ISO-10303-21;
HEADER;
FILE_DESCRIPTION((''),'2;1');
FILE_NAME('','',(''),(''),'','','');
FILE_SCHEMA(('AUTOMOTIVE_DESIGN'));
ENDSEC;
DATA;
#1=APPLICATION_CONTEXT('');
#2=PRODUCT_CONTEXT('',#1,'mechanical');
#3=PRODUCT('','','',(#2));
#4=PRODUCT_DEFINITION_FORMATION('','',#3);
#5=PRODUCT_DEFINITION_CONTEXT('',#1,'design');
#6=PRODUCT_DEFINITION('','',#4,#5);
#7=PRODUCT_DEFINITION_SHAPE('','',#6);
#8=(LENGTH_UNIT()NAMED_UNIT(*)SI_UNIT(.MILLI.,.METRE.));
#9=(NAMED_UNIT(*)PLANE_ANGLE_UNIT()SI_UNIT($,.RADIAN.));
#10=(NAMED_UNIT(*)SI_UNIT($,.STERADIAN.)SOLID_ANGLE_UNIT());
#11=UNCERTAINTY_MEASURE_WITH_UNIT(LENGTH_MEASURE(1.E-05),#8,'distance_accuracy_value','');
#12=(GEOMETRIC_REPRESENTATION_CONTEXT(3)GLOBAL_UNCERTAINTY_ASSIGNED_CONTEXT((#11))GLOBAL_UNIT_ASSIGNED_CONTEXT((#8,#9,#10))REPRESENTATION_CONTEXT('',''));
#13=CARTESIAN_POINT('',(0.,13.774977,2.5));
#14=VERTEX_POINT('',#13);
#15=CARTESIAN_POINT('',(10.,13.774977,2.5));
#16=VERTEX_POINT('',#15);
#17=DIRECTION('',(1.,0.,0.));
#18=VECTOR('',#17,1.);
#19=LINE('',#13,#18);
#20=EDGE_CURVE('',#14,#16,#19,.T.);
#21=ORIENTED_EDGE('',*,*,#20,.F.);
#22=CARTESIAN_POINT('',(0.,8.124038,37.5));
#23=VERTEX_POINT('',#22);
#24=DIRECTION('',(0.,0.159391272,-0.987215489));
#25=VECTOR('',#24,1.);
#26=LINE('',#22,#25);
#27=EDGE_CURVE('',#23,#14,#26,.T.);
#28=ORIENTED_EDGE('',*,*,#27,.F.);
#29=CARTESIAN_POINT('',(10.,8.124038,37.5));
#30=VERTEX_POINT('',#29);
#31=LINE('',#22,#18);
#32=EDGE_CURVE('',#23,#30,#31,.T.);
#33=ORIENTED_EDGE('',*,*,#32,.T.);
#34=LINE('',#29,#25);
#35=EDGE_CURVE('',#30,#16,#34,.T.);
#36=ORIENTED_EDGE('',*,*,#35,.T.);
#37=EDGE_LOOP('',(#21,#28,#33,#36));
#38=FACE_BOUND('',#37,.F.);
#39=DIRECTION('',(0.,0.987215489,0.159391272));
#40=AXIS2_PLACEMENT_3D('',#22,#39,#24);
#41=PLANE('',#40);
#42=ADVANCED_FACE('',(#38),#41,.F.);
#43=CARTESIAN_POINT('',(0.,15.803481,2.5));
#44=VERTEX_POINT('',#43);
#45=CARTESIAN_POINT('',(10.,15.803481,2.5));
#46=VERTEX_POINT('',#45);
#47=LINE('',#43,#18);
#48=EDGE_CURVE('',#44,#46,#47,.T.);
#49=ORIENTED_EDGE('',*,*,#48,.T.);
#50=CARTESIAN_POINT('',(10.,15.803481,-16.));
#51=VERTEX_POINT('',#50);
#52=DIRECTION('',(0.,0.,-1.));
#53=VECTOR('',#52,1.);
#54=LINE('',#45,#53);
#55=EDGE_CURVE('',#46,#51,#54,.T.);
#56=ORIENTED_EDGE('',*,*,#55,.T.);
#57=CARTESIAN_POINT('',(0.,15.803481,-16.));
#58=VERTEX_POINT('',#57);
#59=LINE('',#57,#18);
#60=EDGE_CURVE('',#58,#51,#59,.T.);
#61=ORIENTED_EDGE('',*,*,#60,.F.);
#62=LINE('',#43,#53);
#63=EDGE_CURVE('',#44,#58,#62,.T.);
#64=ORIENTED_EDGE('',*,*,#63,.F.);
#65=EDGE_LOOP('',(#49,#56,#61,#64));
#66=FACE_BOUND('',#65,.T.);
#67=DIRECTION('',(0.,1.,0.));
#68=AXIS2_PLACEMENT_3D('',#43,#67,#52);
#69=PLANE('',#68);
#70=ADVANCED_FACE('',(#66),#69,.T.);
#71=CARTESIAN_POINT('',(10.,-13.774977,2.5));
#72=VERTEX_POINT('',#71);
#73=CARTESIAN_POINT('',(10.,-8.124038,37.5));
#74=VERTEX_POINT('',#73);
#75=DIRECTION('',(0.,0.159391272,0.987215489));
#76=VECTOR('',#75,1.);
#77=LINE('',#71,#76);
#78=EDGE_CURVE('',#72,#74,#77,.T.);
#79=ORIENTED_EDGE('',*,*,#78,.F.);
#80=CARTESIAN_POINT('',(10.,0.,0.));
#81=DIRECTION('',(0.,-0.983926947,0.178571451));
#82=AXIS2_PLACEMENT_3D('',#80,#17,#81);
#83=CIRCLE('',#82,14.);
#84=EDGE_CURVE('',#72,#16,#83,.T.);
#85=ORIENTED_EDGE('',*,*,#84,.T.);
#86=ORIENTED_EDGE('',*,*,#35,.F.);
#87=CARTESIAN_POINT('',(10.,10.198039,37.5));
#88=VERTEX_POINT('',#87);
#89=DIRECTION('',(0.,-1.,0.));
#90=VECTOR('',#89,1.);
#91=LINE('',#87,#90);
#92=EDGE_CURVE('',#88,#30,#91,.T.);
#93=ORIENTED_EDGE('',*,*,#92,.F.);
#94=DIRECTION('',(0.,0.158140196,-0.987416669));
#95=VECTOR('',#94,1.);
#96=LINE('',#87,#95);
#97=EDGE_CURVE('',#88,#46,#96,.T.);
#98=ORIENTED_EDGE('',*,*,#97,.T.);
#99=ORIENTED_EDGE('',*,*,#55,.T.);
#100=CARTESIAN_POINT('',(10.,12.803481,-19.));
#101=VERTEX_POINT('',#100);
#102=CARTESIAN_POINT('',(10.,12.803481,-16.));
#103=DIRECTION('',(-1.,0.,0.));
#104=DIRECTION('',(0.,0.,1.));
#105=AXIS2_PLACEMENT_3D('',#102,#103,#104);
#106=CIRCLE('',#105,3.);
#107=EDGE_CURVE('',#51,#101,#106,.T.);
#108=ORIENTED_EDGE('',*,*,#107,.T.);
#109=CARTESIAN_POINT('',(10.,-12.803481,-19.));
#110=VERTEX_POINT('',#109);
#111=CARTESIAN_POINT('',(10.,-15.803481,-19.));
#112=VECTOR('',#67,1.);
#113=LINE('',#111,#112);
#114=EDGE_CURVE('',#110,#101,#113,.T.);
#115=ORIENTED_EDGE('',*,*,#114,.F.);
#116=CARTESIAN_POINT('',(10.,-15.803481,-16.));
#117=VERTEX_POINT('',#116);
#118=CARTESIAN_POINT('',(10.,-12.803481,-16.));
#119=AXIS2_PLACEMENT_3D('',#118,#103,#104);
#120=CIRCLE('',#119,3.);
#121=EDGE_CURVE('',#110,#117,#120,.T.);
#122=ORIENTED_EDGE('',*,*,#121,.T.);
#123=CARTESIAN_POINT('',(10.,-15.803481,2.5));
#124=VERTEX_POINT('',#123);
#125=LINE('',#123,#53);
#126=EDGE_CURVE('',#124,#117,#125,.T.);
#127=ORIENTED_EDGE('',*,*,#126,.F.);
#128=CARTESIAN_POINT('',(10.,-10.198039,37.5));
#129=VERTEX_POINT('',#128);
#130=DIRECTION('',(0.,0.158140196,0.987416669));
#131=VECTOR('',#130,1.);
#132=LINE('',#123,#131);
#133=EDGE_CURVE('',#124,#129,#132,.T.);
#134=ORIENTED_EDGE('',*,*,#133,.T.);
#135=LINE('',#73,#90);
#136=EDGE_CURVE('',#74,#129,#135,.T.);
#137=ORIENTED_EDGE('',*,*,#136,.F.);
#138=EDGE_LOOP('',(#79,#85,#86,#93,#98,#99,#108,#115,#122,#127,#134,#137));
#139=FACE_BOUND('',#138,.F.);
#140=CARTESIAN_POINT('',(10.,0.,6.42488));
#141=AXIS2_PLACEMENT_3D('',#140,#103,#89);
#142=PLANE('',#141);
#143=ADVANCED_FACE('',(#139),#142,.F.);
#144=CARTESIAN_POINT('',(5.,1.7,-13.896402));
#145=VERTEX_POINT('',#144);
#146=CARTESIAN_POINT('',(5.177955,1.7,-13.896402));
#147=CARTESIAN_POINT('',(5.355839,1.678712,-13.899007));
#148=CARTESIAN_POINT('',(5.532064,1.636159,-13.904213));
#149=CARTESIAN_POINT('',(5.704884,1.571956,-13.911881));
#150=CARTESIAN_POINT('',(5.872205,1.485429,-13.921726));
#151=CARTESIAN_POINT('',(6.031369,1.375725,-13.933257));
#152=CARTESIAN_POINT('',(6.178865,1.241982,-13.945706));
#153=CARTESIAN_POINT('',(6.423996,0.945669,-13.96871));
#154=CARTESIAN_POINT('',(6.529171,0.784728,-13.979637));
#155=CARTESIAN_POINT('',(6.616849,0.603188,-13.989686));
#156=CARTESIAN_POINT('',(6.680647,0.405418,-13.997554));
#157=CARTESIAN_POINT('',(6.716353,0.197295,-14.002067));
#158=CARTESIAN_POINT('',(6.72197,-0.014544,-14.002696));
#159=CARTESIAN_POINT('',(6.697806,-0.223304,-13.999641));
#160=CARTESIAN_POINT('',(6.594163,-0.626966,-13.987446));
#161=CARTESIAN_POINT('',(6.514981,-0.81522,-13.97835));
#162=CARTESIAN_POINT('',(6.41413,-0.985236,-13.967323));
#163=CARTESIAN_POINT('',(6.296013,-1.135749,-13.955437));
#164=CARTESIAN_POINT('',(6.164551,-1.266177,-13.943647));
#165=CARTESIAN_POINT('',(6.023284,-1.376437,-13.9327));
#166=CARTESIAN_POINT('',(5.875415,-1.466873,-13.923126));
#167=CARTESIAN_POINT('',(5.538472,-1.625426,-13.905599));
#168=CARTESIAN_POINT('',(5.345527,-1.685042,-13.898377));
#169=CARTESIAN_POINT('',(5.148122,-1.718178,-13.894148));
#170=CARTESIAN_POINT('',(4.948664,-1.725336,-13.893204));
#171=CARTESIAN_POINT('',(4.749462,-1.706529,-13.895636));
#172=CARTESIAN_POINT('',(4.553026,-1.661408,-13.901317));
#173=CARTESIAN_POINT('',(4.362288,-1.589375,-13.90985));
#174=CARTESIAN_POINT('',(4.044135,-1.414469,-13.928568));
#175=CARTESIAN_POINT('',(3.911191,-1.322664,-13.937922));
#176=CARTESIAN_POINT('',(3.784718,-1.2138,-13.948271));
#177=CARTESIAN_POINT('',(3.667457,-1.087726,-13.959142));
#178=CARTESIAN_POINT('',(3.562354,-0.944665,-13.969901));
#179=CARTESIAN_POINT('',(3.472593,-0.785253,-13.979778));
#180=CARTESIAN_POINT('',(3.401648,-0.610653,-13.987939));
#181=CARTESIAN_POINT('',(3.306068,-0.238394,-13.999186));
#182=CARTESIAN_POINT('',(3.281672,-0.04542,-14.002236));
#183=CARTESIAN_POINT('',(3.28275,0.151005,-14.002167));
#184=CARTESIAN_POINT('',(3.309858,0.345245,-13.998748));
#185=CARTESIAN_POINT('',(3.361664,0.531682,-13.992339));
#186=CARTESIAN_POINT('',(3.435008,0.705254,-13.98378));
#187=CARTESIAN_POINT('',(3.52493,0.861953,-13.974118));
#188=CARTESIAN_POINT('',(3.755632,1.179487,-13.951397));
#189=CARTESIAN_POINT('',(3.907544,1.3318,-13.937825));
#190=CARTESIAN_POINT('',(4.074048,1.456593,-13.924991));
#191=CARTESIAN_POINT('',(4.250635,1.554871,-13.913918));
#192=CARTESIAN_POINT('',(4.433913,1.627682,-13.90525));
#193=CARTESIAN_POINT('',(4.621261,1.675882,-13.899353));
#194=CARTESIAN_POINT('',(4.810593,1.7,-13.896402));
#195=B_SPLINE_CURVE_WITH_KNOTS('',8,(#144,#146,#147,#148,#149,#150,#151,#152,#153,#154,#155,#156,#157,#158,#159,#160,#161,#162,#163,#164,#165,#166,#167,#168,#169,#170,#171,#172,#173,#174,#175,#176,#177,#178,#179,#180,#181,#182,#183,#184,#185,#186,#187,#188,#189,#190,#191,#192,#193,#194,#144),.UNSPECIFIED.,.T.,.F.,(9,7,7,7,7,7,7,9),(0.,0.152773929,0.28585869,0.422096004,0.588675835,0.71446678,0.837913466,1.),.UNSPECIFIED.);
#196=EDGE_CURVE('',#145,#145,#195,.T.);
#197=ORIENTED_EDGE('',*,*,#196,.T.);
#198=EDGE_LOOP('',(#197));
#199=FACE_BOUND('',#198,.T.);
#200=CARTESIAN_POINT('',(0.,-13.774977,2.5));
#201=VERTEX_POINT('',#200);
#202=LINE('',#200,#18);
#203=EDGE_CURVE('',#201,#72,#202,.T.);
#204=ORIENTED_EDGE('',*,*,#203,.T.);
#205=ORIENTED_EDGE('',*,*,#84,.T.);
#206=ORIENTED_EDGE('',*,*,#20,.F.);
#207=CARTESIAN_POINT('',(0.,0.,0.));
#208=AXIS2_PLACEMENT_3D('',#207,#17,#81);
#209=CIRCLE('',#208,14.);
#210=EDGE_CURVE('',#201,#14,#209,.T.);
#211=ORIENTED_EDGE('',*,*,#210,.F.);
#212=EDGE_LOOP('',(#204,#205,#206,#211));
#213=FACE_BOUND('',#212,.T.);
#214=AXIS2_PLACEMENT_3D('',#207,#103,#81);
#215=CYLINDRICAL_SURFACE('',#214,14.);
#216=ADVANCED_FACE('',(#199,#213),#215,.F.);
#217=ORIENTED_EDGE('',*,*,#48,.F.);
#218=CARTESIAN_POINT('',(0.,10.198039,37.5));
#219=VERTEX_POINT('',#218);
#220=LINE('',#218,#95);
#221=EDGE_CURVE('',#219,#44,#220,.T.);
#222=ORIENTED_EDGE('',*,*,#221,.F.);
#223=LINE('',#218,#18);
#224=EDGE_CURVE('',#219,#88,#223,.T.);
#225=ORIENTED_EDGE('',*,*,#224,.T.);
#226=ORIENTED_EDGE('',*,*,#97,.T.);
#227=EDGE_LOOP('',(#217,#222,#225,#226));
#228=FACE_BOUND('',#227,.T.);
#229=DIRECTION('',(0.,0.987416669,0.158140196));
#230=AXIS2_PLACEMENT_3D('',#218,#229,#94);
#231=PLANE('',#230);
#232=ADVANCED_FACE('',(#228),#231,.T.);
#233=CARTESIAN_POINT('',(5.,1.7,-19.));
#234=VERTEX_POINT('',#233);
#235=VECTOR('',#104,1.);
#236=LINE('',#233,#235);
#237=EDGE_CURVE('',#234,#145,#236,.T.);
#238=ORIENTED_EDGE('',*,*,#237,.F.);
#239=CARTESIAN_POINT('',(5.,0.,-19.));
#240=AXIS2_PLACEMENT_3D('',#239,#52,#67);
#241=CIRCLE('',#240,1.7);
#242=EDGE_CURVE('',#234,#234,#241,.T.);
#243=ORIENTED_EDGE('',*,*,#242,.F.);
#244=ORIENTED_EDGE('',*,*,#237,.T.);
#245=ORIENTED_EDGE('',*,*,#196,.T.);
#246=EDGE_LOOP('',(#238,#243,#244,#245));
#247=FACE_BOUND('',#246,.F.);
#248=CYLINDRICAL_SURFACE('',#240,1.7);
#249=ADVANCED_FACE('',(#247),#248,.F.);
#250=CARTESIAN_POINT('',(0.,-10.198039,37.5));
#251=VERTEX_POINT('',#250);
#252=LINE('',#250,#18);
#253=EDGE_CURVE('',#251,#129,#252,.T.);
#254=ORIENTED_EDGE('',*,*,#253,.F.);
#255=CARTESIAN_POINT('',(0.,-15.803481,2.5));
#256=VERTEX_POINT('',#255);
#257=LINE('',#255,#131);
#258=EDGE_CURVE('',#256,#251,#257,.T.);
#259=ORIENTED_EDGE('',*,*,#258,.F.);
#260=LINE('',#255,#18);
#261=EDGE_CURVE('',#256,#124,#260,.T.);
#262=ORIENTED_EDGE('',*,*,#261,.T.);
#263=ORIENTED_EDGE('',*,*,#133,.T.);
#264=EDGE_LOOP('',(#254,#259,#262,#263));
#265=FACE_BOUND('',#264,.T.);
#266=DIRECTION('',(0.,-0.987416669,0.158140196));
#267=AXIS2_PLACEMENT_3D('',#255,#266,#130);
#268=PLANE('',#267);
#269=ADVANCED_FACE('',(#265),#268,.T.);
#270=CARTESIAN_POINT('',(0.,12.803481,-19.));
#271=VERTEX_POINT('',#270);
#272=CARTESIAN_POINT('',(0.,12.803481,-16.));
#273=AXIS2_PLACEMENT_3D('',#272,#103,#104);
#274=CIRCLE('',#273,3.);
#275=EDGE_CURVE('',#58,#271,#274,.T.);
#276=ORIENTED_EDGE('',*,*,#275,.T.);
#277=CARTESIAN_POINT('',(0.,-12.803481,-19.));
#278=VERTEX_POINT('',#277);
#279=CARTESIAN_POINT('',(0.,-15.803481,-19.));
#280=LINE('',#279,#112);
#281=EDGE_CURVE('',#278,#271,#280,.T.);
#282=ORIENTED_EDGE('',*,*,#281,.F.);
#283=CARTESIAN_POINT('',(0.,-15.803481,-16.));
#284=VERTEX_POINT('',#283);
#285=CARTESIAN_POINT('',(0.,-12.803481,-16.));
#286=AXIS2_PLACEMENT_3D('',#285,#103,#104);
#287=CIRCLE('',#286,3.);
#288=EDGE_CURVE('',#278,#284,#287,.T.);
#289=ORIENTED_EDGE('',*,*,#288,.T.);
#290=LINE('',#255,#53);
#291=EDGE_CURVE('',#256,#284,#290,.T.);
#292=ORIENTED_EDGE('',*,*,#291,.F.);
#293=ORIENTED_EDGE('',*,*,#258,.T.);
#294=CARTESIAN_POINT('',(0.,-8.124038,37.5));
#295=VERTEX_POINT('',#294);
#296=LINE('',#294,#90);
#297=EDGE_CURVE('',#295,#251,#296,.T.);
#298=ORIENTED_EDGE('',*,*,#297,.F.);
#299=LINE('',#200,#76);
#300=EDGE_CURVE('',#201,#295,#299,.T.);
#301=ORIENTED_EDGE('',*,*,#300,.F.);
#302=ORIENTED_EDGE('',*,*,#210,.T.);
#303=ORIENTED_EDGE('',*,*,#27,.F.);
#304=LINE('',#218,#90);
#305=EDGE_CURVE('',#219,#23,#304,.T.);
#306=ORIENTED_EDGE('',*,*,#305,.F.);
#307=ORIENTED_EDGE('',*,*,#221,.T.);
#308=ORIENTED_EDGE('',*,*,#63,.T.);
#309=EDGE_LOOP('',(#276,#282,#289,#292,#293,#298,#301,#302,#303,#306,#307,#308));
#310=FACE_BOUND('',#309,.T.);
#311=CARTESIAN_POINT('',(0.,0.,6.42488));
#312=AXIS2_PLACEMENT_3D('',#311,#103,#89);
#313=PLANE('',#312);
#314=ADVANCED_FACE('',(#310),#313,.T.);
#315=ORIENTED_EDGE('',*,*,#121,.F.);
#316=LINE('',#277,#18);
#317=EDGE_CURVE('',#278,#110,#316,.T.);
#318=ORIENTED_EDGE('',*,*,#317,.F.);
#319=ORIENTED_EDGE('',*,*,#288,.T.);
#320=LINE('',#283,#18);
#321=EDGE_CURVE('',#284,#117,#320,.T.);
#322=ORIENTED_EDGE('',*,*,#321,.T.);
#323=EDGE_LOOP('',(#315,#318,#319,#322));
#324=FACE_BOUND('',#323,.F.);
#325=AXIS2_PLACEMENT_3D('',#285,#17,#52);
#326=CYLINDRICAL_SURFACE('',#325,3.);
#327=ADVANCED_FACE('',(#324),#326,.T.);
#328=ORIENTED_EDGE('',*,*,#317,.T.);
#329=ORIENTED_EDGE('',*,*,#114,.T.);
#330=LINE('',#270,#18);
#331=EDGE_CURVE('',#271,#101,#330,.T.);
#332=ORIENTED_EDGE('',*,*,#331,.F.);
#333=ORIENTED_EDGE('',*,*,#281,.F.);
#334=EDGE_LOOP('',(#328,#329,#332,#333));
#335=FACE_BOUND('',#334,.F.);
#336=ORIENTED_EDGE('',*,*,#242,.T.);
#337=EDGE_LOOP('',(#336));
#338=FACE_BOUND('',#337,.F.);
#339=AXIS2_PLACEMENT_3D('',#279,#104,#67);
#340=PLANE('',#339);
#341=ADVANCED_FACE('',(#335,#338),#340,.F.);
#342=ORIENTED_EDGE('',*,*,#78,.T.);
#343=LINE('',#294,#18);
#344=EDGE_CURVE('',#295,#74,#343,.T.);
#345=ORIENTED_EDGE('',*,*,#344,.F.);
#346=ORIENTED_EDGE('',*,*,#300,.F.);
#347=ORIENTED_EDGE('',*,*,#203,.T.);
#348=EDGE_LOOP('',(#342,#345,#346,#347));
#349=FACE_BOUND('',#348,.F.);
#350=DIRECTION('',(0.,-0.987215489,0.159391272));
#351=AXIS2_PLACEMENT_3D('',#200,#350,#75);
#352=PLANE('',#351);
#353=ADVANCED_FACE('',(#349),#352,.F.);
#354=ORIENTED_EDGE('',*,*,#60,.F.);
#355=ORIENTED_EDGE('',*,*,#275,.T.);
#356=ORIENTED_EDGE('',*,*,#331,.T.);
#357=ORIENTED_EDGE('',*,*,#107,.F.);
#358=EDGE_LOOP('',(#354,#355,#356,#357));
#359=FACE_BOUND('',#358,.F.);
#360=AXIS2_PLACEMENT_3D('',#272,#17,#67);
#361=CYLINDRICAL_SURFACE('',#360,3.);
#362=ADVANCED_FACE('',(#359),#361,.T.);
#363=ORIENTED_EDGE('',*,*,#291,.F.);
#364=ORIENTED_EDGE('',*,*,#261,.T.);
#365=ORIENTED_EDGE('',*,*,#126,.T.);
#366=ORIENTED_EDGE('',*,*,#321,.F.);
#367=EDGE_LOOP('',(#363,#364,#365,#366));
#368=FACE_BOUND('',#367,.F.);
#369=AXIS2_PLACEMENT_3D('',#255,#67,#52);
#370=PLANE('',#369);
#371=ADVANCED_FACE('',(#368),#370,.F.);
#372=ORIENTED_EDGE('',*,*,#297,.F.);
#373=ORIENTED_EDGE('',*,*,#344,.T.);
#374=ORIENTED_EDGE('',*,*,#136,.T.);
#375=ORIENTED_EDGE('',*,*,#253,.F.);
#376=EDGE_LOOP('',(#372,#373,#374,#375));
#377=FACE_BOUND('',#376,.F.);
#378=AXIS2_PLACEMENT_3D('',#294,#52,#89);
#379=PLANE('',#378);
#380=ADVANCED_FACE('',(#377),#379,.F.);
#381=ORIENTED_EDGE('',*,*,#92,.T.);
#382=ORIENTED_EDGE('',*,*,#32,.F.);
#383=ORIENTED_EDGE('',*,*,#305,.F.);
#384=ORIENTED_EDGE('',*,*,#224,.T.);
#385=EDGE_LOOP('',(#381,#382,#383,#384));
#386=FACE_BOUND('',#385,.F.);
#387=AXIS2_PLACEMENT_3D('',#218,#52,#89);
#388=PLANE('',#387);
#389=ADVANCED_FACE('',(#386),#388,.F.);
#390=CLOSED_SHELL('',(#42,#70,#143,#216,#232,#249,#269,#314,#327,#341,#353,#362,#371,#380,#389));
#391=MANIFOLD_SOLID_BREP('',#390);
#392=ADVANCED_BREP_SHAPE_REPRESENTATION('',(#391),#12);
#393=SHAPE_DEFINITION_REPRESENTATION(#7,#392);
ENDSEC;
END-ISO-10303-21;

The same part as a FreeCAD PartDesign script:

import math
import FreeCAD as App
import Part
import Sketcher

V = App.Vector


def edges_at(feature, points):
    """Names of the edges that pass closest to the given points."""
    edges = feature.Shape.Edges
    near = lambda p: min(range(len(edges)), key=lambda i: edges[i].distToShape(Part.Vertex(*p))[0])
    return sorted({f"Edge{near(p) + 1}" for p in points})

doc = App.newDocument("Part")
body = doc.addObject("PartDesign::Body", "Body")

# Sketch on YZ plane
sketch1 = doc.addObject("Sketcher::SketchObject", "Sketch")
body.addObject(sketch1)
sketch1.AttachmentSupport = (doc.YZ_Plane, [""])
sketch1.MapMode = "FlatFace"
sketch1.addGeometry(Part.ArcOfCircle(Part.Circle(V(0, 0, 0), V(0, 0, 1), 14), math.radians(170), math.radians(370)), False)
sketch1.addGeometry(Part.LineSegment(V(-13.8, 2.5, 0), V(-8.1, 37.5, 0)), False)
sketch1.addGeometry(Part.LineSegment(V(-8.1, 37.5, 0), V(-10.2, 37.5, 0)), False)
sketch1.addGeometry(Part.LineSegment(V(-10.2, 37.5, 0), V(-15.8, 2.5, 0)), False)
sketch1.addGeometry(Part.LineSegment(V(-15.8, 2.5, 0), V(-15.8, -19, 0)), False)
sketch1.addGeometry(Part.LineSegment(V(-15.8, -19, 0), V(15.8, -19, 0)), False)
sketch1.addGeometry(Part.LineSegment(V(15.8, -19, 0), V(15.8, 2.5, 0)), False)
sketch1.addGeometry(Part.LineSegment(V(15.8, 2.5, 0), V(10.2, 37.5, 0)), False)
sketch1.addGeometry(Part.LineSegment(V(10.2, 37.5, 0), V(8.1, 37.5, 0)), False)
sketch1.addGeometry(Part.LineSegment(V(8.1, 37.5, 0), V(13.8, 2.5, 0)), False)
sketch1.addConstraint(Sketcher.Constraint("Coincident", 0, 1, 1, 1))
sketch1.addConstraint(Sketcher.Constraint("Coincident", 1, 2, 2, 1))
sketch1.addConstraint(Sketcher.Constraint("Coincident", 2, 2, 3, 1))
sketch1.addConstraint(Sketcher.Constraint("Coincident", 3, 2, 4, 1))
sketch1.addConstraint(Sketcher.Constraint("Coincident", 4, 2, 5, 1))
sketch1.addConstraint(Sketcher.Constraint("Coincident", 5, 2, 6, 1))
sketch1.addConstraint(Sketcher.Constraint("Coincident", 6, 2, 7, 1))
sketch1.addConstraint(Sketcher.Constraint("Coincident", 7, 2, 8, 1))
sketch1.addConstraint(Sketcher.Constraint("Coincident", 8, 2, 9, 1))
sketch1.addConstraint(Sketcher.Constraint("Coincident", 9, 2, 0, 2))
sketch1.addConstraint(Sketcher.Constraint("Horizontal", 2))
sketch1.addConstraint(Sketcher.Constraint("Vertical", 4))
sketch1.addConstraint(Sketcher.Constraint("Horizontal", 5))
sketch1.addConstraint(Sketcher.Constraint("Vertical", 6))
sketch1.addConstraint(Sketcher.Constraint("Horizontal", 8))
sketch1.addConstraint(Sketcher.Constraint("Coincident", 0, 3, -1, 1))
sketch1.addConstraint(Sketcher.Constraint("Symmetric", 3, 2, 6, 2, -2))
sketch1.addConstraint(Sketcher.Constraint("Symmetric", 2, 2, 7, 2, -2))
sketch1.addConstraint(Sketcher.Constraint("Horizontal", 0, 1, 3, 2))
sketch1.addConstraint(Sketcher.Constraint("Horizontal", 6, 2, 9, 2))
sketch1.addConstraint(Sketcher.Constraint("Equal", 2, 8))
sketch1.addConstraint(Sketcher.Constraint("Radius", 0, 14.0))
sketch1.addConstraint(Sketcher.Constraint("DistanceY", 4, 2, 4, 1, 21.5))
sketch1.addConstraint(Sketcher.Constraint("DistanceY", 4, 2, -1, 1, 19.0))
sketch1.addConstraint(Sketcher.Constraint("DistanceY", 0, 1, 1, 2, 35.0))
sketch1.addConstraint(Sketcher.Constraint("DistanceX", 2, 2, 2, 1, 2.074001))
sketch1.addConstraint(Sketcher.Constraint("DistanceX", 5, 1, 5, 2, 31.606962))
sketch1.addConstraint(Sketcher.Constraint("Distance", 3, 35.446029))
pad1 = doc.addObject("PartDesign::Pad", "Pad")
body.addObject(pad1)
pad1.Profile = sketch1
pad1.Length = 10
doc.recompute()

fillet = doc.addObject("PartDesign::Fillet", "Fillet")
body.addObject(fillet)
fillet.Base = (pad1, edges_at(pad1, [(5, -15.803, -19), (5, 15.803, -19)]))
fillet.Radius = 3

# Sketch on XY plane
sketch2 = doc.addObject("Sketcher::SketchObject", "Sketch001")
body.addObject(sketch2)
sketch2.AttachmentSupport = (doc.XY_Plane, [""])
sketch2.MapMode = "FlatFace"
sketch2.AttachmentOffset = App.Placement(V(0, 0, -19), App.Rotation())
sketch2.addGeometry(Part.Circle(V(5, 0, 0), V(0, 0, 1), 1.7), False)
sketch2.addConstraint(Sketcher.Constraint("PointOnObject", 0, 3, -1))
sketch2.addConstraint(Sketcher.Constraint("Diameter", 0, 3.4))
sketch2.addConstraint(Sketcher.Constraint("DistanceX", -1, 1, 0, 3, 5.0))
pocket1 = doc.addObject("PartDesign::Pocket", "Pocket")
body.addObject(pocket1)
pocket1.Profile = sketch2
pocket1.Type = "ThroughAll"
pocket1.Reversed = True

doc.recompute()
